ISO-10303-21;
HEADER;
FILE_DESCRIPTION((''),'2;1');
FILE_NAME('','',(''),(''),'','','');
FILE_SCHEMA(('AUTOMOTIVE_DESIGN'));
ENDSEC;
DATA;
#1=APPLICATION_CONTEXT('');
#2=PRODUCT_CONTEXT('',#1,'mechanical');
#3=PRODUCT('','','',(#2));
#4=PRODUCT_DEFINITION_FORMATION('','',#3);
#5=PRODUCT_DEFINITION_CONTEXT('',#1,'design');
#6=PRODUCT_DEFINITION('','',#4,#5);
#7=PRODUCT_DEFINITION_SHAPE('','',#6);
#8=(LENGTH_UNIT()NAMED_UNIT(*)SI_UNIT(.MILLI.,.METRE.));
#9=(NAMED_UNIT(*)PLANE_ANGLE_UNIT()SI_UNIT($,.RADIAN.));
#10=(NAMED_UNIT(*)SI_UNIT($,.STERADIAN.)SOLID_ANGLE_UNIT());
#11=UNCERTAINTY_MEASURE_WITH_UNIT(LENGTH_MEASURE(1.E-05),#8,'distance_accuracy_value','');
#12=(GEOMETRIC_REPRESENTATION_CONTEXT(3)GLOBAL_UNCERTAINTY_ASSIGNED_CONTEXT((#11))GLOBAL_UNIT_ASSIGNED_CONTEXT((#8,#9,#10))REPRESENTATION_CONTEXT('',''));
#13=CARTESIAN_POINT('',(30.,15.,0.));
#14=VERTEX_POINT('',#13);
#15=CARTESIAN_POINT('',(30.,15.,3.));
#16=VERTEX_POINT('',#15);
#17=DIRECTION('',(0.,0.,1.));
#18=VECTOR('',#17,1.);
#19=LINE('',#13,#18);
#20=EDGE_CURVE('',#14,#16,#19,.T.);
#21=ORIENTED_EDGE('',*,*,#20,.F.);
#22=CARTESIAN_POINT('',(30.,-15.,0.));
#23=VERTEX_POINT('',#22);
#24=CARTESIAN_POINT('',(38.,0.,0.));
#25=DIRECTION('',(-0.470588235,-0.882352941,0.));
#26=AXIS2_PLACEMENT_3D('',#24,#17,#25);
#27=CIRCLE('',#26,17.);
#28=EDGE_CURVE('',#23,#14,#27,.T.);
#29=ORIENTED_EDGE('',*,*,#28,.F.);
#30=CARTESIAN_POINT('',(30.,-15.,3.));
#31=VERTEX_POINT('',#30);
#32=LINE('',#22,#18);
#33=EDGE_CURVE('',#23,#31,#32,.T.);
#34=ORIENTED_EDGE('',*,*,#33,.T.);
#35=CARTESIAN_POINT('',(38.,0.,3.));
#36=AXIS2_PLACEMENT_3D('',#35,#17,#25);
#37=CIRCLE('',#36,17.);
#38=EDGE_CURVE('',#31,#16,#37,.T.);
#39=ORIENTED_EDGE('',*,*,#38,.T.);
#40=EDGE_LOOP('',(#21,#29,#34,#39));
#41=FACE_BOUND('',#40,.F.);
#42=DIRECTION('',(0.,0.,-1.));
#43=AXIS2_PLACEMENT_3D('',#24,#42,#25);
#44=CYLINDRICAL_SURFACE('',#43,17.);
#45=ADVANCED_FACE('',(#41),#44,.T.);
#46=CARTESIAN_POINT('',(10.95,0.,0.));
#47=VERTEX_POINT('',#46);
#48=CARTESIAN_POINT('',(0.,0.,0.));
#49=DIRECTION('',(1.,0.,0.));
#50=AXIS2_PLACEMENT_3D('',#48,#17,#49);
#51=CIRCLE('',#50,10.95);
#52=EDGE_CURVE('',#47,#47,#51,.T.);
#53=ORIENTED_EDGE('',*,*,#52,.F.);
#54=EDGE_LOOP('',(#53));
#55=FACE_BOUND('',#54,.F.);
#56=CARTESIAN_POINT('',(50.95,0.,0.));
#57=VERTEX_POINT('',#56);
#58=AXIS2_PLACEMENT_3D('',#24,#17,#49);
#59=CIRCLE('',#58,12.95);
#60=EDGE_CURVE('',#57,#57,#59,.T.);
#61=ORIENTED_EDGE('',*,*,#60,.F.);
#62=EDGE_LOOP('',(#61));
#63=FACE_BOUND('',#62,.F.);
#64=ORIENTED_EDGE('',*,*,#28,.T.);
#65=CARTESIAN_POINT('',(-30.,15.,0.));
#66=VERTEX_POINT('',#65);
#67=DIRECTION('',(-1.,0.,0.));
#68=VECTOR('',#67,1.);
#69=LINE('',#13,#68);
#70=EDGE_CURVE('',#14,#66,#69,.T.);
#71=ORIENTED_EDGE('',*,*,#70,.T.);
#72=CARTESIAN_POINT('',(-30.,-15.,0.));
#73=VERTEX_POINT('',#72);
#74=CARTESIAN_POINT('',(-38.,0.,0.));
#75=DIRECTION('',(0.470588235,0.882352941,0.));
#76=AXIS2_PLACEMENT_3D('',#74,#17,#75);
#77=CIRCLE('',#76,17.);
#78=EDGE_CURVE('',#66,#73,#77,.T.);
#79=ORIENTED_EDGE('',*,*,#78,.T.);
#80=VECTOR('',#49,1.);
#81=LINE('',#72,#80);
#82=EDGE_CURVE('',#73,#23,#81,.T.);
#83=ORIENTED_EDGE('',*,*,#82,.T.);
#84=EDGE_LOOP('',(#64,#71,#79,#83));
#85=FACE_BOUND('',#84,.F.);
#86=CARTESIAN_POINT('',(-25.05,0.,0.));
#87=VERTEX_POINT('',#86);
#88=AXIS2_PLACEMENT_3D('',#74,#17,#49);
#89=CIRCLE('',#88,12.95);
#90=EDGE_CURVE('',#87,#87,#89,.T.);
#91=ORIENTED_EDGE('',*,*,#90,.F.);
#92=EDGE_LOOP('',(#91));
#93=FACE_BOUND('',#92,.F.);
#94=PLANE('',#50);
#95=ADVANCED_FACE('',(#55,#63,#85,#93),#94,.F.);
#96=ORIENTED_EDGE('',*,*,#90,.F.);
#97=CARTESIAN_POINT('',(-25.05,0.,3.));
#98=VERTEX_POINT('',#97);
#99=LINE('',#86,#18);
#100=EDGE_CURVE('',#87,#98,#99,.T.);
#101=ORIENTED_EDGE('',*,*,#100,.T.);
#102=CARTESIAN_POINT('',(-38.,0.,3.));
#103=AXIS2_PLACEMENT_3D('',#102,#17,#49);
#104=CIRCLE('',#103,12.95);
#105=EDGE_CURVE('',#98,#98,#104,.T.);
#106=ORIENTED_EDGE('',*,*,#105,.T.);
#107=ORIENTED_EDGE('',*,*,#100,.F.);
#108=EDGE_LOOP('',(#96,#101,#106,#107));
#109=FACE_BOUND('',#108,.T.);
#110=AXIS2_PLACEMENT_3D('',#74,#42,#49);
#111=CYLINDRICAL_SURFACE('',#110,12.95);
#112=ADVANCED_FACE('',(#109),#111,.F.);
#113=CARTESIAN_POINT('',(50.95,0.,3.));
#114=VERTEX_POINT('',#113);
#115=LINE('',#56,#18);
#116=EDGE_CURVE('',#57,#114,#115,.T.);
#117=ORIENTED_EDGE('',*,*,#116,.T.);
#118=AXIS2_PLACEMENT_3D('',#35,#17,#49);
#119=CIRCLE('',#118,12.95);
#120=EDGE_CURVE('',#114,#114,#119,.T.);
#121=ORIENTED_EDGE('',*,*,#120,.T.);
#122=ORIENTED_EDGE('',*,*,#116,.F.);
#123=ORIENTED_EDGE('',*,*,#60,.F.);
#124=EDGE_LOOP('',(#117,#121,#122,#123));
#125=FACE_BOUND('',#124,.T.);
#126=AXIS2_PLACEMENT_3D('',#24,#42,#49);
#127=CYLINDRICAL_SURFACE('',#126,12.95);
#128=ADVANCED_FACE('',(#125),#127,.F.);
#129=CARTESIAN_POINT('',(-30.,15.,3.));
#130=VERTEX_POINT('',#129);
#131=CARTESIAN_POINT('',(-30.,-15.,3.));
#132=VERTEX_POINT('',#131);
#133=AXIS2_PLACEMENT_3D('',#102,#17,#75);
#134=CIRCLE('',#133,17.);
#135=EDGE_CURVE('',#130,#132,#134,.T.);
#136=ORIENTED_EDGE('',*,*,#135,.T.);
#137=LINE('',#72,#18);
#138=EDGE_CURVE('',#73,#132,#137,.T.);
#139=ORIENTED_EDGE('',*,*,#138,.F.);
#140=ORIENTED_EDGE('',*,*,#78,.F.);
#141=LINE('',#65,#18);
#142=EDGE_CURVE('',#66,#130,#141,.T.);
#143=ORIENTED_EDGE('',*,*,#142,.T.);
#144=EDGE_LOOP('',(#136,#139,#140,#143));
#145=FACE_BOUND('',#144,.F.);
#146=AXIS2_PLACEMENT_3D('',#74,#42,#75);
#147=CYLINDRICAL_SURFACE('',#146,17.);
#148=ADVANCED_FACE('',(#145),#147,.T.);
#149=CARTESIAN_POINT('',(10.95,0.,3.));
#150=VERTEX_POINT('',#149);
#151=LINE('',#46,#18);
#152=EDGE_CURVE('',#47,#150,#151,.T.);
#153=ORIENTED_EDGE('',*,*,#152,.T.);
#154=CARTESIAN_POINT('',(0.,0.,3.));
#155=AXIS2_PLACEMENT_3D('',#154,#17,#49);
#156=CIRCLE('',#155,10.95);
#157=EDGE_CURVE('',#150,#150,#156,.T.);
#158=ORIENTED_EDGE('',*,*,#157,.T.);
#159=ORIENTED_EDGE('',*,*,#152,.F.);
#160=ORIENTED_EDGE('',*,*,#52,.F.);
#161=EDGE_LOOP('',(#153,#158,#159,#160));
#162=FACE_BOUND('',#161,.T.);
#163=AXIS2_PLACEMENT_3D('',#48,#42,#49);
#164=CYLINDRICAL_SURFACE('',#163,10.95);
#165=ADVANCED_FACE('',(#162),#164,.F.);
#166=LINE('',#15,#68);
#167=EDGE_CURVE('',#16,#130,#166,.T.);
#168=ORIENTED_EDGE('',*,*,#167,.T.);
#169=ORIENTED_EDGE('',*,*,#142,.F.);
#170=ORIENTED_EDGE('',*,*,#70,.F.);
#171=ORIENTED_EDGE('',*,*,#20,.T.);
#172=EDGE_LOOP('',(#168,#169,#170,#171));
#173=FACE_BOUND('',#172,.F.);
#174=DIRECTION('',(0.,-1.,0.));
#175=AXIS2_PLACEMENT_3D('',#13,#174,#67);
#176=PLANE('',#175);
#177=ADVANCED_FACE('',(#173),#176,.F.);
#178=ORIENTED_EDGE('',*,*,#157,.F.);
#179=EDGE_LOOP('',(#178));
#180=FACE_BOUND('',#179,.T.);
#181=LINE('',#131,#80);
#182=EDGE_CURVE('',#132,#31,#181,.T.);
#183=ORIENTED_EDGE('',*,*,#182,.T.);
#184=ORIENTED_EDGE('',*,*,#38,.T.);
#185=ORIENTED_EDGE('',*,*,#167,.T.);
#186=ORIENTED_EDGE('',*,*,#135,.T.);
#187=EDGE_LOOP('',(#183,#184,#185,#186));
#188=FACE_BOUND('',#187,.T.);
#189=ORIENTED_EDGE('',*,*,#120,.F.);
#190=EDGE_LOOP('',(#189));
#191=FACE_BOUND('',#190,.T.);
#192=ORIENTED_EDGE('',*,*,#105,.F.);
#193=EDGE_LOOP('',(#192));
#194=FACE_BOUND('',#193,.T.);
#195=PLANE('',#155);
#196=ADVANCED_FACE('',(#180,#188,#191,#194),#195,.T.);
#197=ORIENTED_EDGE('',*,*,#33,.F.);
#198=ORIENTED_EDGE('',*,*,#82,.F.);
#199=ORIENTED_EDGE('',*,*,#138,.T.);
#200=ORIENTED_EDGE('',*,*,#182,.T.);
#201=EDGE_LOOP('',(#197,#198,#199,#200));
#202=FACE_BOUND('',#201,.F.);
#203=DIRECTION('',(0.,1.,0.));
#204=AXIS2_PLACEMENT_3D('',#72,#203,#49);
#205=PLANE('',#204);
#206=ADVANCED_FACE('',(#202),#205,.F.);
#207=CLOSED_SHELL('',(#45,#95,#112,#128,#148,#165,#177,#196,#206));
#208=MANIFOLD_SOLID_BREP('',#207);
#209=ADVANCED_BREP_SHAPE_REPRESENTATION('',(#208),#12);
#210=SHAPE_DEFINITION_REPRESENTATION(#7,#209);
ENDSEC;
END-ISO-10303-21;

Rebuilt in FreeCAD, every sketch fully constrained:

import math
import FreeCAD as App
import Part
import Sketcher
Q = App.Units.Quantity

doc = App.newDocument("Part")
params = doc.addObject("Spreadsheet::Sheet", "Params")
for row, (alias, value) in enumerate([
    ("sketch1_radius", "17 mm"),
    ("sketch1_diameter", "25.9 mm"),
    ("sketch1_diameter2", "21.9 mm"),
    ("sketch1_width", "60 mm"),
    ("pad1_length", "3 mm"),
], start=1):
    params.set(f"A{row}", alias)
    params.set(f"B{row}", "=" + value)
    params.setAlias(f"B{row}", alias)

body = doc.addObject("PartDesign::Body", "Body")

# Sketch on XY plane
sketch1 = body.newObject("Sketcher::SketchObject", "Sketch")
sketch1.AttachmentSupport = (doc.getObject("XY_Plane"), [""])
sketch1.MapMode = "FlatFace"
sketch1.addGeometry([
    Part.LineSegment(App.Vector(30, 15, 0), App.Vector(-30, 15, 0)),  # 0
    Part.ArcOfCircle(Part.Circle(App.Vector(-38, 0, 0), App.Vector(0, 0, 1), 17), math.radians(62), math.radians(298)),  # 1
    Part.LineSegment(App.Vector(-30, -15, 0), App.Vector(30, -15, 0)),  # 2
    Part.ArcOfCircle(Part.Circle(App.Vector(38, 0, 0), App.Vector(0, 0, 1), 17), math.radians(-118), math.radians(118)),  # 3
    Part.Circle(App.Vector(-38, 0, 0), App.Vector(0, 0, 1), 13),  # 4
    Part.Circle(App.Vector(0, 0, 0), App.Vector(0, 0, 1), 11),  # 5
    Part.Circle(App.Vector(38, 0, 0), App.Vector(0, 0, 1), 13),  # 6
], False)
sketch1.addConstraint([
    Sketcher.Constraint("Coincident", 0, 2, 1, 1),
    Sketcher.Constraint("Coincident", 1, 2, 2, 1),
    Sketcher.Constraint("Coincident", 2, 2, 3, 1),
    Sketcher.Constraint("Coincident", 3, 2, 0, 1),
    Sketcher.Constraint("Horizontal", 0),
    Sketcher.Constraint("Horizontal", 2),
    Sketcher.Constraint("Coincident", 5, 3, -1, 1),
    Sketcher.Constraint("Coincident", 4, 3, 1, 3),
    Sketcher.Constraint("Coincident", 6, 3, 3, 3),
    Sketcher.Constraint("Equal", 1, 3),
    Sketcher.Constraint("Equal", 4, 6),
    Sketcher.Constraint("Symmetric", 1, 3, 3, 3, -1, 1),
    Sketcher.Constraint("Symmetric", 0, 2, 1, 2, -1),
    Sketcher.Constraint("Radius", 1, Q("17 mm")),
    Sketcher.Constraint("Diameter", 4, Q("25.9 mm")),
    Sketcher.Constraint("Diameter", 5, Q("21.9 mm")),
    Sketcher.Constraint("DistanceX", 0, 2, 0, 1, Q("60 mm")),
    Sketcher.Constraint("DistanceX", 1, 3, -1, 1, Q("38 mm")),
])
sketch1.setExpression("Constraints[13]", "Params.sketch1_radius")
sketch1.setExpression("Constraints[14]", "Params.sketch1_diameter")
sketch1.setExpression("Constraints[15]", "Params.sketch1_diameter2")
sketch1.setExpression("Constraints[16]", "Params.sketch1_width")
pad1 = body.newObject("PartDesign::Pad", "Pad")
pad1.Profile = sketch1
pad1.setExpression("Length", "Params.pad1_length")

doc.recompute()
